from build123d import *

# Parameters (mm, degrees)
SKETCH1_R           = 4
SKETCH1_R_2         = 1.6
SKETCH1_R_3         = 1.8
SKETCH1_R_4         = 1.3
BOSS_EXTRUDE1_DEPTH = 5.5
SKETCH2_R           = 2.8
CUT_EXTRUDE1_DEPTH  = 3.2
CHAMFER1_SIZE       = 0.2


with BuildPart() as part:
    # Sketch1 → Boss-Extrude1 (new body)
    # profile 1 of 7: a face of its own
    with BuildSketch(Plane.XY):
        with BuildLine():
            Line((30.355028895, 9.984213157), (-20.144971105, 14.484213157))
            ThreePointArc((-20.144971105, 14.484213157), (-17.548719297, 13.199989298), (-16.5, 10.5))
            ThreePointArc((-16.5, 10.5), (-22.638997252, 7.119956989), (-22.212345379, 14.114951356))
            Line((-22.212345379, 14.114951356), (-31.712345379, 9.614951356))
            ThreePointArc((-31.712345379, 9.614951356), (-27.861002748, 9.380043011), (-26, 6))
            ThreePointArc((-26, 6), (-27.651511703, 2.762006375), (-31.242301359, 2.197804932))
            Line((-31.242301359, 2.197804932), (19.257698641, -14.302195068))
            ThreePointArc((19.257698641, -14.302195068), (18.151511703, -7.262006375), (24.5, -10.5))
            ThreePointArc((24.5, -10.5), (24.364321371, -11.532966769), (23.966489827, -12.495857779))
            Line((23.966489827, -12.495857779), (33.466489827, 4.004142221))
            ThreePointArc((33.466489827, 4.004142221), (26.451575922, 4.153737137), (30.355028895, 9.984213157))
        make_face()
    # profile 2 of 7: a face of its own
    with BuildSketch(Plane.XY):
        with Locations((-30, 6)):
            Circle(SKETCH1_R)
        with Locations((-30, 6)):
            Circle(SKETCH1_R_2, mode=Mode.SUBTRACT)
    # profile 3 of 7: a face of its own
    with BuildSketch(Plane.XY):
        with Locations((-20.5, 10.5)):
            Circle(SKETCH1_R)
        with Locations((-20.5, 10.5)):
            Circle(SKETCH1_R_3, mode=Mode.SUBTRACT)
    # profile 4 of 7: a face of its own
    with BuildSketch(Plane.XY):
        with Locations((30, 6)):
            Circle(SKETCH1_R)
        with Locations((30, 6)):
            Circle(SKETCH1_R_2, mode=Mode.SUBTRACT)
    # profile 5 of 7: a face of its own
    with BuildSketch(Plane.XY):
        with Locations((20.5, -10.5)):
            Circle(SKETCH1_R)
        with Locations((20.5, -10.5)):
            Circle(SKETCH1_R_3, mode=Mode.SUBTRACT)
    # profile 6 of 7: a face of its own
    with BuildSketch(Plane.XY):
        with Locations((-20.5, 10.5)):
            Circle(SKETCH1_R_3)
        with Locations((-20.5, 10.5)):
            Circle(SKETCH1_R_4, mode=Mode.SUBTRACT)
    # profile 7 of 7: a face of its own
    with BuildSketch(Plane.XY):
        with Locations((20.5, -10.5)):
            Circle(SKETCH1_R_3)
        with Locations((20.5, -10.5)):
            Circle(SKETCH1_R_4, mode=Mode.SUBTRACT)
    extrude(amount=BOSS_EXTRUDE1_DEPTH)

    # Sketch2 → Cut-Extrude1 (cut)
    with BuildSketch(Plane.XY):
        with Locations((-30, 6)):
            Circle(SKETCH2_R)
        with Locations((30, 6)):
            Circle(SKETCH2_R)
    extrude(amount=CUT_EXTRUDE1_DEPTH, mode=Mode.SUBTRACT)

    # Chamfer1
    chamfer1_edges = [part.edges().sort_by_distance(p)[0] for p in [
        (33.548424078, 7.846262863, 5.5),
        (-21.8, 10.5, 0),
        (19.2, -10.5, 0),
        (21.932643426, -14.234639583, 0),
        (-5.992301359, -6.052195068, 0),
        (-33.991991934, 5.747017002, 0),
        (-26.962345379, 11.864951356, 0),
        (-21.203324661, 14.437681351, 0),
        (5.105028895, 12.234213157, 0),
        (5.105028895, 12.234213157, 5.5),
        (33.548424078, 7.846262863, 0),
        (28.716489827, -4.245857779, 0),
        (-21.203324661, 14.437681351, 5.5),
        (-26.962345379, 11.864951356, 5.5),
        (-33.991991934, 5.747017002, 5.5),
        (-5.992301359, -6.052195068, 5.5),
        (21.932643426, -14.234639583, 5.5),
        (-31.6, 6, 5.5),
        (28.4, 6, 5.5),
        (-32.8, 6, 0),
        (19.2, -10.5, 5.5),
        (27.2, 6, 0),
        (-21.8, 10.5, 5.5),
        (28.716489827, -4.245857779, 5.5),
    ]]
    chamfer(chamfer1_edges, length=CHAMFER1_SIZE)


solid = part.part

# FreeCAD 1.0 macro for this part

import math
import FreeCAD as App
import Part
import Sketcher
Q = App.Units.Quantity


def edges_at(feature, points):
    """Names of the edges that pass closest to the given points."""
    edges = feature.Shape.Edges
    near = lambda p: min(range(len(edges)), key=lambda i: edges[i].distToShape(Part.Vertex(*p))[0])
    return sorted({f"Edge{near(p) + 1}" for p in points})

doc = App.newDocument("Part")
params = doc.addObject("Spreadsheet::Sheet", "Params")
for row, (alias, value) in enumerate([
    ("sketch1_radius", "4 mm"),
    ("sketch1_diameter", "3.2 mm"),
    ("sketch1_diameter2", "2.6 mm"),
    ("pad1_length", "5.5 mm"),
    ("sketch2_diameter", "5.6 mm"),
    ("pocket1_length", "3.2 mm"),
    ("chamfer_size", "0.2 mm"),
], start=1):
    params.set(f"A{row}", alias)
    params.set(f"B{row}", "=" + value)
    params.setAlias(f"B{row}", alias)

body = doc.addObject("PartDesign::Body", "Body")

sketch1 = body.newObject("Sketcher::SketchObject", "Sketch")
sketch1.AttachmentSupport = (doc.getObject("XY_Plane"), [""])
sketch1.MapMode = "FlatFace"
sketch1.addGeometry([
    Part.LineSegment(App.Vector(30.4, 10, 0), App.Vector(-20.1, 14.5, 0)),
    Part.ArcOfCircle(Part.Circle(App.Vector(-20.5, 10.5, 0), App.Vector(0, 0, 1), 4), math.radians(85), math.radians(115)),
    Part.LineSegment(App.Vector(-22.2, 14.1, 0), App.Vector(-31.7, 9.6, 0)),
    Part.ArcOfCircle(Part.Circle(App.Vector(-30, 6, 0), App.Vector(0, 0, 1), 4), math.radians(115), math.radians(252)),
    Part.LineSegment(App.Vector(-31.2, 2.2, 0), App.Vector(19.3, -14.3, 0)),
    Part.ArcOfCircle(Part.Circle(App.Vector(20.5, -10.5, 0), App.Vector(0, 0, 1), 4), math.radians(-108), math.radians(-30)),
    Part.LineSegment(App.Vector(24, -12.5, 0), App.Vector(33.5, 4, 0)),
    Part.ArcOfCircle(Part.Circle(App.Vector(30, 6, 0), App.Vector(0, 0, 1), 4), math.radians(-30), math.radians(85)),
    Part.Circle(App.Vector(-30, 6, 0), App.Vector(0, 0, 1), 1.6),
    Part.Circle(App.Vector(30, 6, 0), App.Vector(0, 0, 1), 1.6),
    Part.Circle(App.Vector(-20.5, 10.5, 0), App.Vector(0, 0, 1), 1.3),
    Part.Circle(App.Vector(20.5, -10.5, 0), App.Vector(0, 0, 1), 1.3),
], False)
sketch1.addConstraint([
    Sketcher.Constraint("Tangent", 0, 2, 1, 1),
    Sketcher.Constraint("Tangent", 1, 2, 2, 1),
    Sketcher.Constraint("Tangent", 2, 2, 3, 1),
    Sketcher.Constraint("Tangent", 3, 2, 4, 1),
    Sketcher.Constraint("Tangent", 4, 2, 5, 1),
    Sketcher.Constraint("Tangent", 5, 2, 6, 1),
    Sketcher.Constraint("Tangent", 6, 2, 7, 1),
    Sketcher.Constraint("Tangent", 7, 2, 0, 1),
    Sketcher.Constraint("Coincident", 8, 3, 3, 3),
    Sketcher.Constraint("Coincident", 9, 3, 7, 3),
    Sketcher.Constraint("Coincident", 10, 3, 1, 3),
    Sketcher.Constraint("Coincident", 11, 3, 5, 3),
    Sketcher.Constraint("Equal", 1, 3),
    Sketcher.Constraint("Equal", 3, 5),
    Sketcher.Constraint("Equal", 5, 7),
    Sketcher.Constraint("Equal", 8, 9),
    Sketcher.Constraint("Equal", 10, 11),
    Sketcher.Constraint("Symmetric", 1, 3, 5, 3, -1, 1),
    Sketcher.Constraint("Symmetric", 3, 3, 7, 3, -2),
    Sketcher.Constraint("Radius", 1, Q("4 mm")),
    Sketcher.Constraint("Diameter", 8, Q("3.2 mm")),
    Sketcher.Constraint("Diameter", 10, Q("2.6 mm")),
    Sketcher.Constraint("DistanceX", 3, 3, -1, 1, Q("30 mm")),
    Sketcher.Constraint("DistanceY", -1, 1, 3, 3, Q("6 mm")),
    Sketcher.Constraint("DistanceX", 1, 3, 5, 3, Q("41 mm")),
    Sketcher.Constraint("DistanceY", 5, 3, 1, 3, Q("21 mm")),
])
sketch1.setExpression("Constraints[19]", "Params.sketch1_radius")
sketch1.setExpression("Constraints[20]", "Params.sketch1_diameter")
sketch1.setExpression("Constraints[21]", "Params.sketch1_diameter2")
pad1 = body.newObject("PartDesign::Pad", "Pad")
pad1.Profile = sketch1
pad1.setExpression("Length", "Params.pad1_length")

sketch2 = body.newObject("Sketcher::SketchObject", "Sketch001")
sketch2.AttachmentSupport = (doc.getObject("XY_Plane"), [""])
sketch2.MapMode = "FlatFace"
sketch2.addGeometry([
    Part.Circle(App.Vector(-30, 6, 0), App.Vector(0, 0, 1), 2.8),
    Part.Circle(App.Vector(30, 6, 0), App.Vector(0, 0, 1), 2.8),
], False)
sketch2.addConstraint([
    Sketcher.Constraint("Equal", 0, 1),
    Sketcher.Constraint("Symmetric", 0, 3, 1, 3, -2),
    Sketcher.Constraint("Diameter", 0, Q("5.6 mm")),
    Sketcher.Constraint("DistanceX", 0, 3, -1, 1, Q("30 mm")),
    Sketcher.Constraint("DistanceY", -1, 1, 0, 3, Q("6 mm")),
])
sketch2.setExpression("Constraints[2]", "Params.sketch2_diameter")
pocket1 = body.newObject("PartDesign::Pocket", "Pocket")
pocket1.Profile = sketch2
pocket1.setExpression("Length", "Params.pocket1_length")
pocket1.Reversed = True
doc.recompute()

chamfer = body.newObject("PartDesign::Chamfer", "Chamfer")
chamfer.Base = (pocket1, edges_at(pocket1, [
    (33.548, 7.846, 5.5),
    (-21.8, 10.5, 0),
    (19.2, -10.5, 0),
    (21.933, -14.235, 0),
    (-5.992, -6.052, 0),
    (-33.992, 5.747, 0),
    (-26.962, 11.865, 0),
    (-21.203, 14.438, 0),
    (5.105, 12.234, 0),
    (5.105, 12.234, 5.5),
    (33.548, 7.846, 0),
    (28.716, -4.246, 0),
    (-21.203, 14.438, 5.5),
    (-26.962, 11.865, 5.5),
    (-33.992, 5.747, 5.5),
    (-5.992, -6.052, 5.5),
    (21.933, -14.235, 5.5),
    (-31.6, 6, 5.5),
    (28.4, 6, 5.5),
    (-32.8, 6, 0),
    (19.2, -10.5, 5.5),
    (27.2, 6, 0),
    (-21.8, 10.5, 5.5),
    (28.716, -4.246, 5.5),
]))
chamfer.setExpression("Size", "Params.chamfer_size")

doc.recompute()
